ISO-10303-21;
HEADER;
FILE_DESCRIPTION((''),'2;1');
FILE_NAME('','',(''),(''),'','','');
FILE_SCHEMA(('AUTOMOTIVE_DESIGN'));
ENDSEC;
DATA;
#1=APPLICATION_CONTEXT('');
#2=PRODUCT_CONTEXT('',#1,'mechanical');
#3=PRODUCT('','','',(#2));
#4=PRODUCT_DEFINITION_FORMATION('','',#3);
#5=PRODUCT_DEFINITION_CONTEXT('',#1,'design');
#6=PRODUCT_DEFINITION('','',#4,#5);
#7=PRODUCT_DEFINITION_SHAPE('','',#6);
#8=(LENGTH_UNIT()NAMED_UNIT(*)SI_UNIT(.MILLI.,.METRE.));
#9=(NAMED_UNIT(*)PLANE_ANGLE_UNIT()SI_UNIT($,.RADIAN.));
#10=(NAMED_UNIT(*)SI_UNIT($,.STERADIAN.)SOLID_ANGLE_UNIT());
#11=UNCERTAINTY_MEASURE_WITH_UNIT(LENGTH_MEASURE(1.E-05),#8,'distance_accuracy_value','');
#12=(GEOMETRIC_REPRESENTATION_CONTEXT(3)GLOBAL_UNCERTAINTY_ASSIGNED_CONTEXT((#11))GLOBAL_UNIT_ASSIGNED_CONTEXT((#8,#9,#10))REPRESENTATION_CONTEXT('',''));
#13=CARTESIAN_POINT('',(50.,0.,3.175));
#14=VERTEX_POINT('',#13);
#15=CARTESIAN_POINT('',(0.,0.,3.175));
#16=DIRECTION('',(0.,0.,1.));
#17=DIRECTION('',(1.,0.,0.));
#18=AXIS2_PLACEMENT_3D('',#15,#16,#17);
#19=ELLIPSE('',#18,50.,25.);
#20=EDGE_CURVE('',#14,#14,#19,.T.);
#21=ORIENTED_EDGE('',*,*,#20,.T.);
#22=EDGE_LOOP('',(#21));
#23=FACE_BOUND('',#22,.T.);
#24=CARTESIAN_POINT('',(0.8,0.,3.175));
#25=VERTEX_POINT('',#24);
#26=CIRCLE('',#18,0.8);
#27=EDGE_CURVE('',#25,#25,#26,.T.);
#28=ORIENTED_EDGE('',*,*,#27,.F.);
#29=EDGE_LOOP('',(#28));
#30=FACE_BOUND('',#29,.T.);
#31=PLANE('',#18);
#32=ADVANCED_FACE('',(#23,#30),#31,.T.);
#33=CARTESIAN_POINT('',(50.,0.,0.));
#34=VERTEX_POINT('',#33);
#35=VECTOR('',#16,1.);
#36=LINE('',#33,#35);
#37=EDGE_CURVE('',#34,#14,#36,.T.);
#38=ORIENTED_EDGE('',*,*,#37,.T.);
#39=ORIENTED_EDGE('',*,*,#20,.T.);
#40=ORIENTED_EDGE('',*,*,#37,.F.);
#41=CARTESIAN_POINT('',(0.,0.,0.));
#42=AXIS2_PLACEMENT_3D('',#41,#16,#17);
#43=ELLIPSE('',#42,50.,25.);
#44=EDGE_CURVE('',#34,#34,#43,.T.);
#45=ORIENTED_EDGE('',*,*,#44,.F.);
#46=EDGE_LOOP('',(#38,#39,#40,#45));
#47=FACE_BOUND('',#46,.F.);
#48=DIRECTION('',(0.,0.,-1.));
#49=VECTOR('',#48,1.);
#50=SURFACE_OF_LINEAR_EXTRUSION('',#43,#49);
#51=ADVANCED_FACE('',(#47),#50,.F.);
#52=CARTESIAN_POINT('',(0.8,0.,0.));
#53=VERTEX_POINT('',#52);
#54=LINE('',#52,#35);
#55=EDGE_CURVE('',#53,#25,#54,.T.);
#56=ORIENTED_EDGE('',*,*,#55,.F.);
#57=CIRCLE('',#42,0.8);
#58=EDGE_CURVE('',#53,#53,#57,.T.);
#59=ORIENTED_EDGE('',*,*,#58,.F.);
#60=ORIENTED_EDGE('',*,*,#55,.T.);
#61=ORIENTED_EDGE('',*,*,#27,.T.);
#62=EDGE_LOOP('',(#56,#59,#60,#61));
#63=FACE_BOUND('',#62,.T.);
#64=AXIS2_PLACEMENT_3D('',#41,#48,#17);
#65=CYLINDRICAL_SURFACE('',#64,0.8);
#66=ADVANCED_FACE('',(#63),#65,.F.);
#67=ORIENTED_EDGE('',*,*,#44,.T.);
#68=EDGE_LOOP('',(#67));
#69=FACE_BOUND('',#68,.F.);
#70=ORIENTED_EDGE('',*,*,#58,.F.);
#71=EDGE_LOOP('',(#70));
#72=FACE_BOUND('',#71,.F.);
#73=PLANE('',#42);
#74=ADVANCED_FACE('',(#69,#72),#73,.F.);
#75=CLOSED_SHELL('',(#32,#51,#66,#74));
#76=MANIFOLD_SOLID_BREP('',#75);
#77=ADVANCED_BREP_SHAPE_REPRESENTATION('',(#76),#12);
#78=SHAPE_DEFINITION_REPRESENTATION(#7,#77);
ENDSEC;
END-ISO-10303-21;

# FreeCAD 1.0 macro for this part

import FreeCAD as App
import Part
import Sketcher
from FreeCAD import Vector
Q = App.Units.Quantity

doc = App.newDocument("Part")
params = doc.addObject("Spreadsheet::Sheet", "Params")
for row, (alias, value) in enumerate([
    ("sketch1_diameter", "0.063 in"),
    ("pad1_length", "0.125 in"),
], start=1):
    params.set(f"A{row}", alias)
    params.set(f"B{row}", "=" + value)
    params.setAlias(f"B{row}", alias)

body = doc.addObject("PartDesign::Body", "Body")

sketch1 = body.newObject("Sketcher::SketchObject", "Sketch")
sketch1.AttachmentSupport = (doc.getObject("XY_Plane"), [""])
sketch1.MapMode = "FlatFace"
sketch1.addGeometry(Part.Ellipse(Vector(50, 0, 0), Vector(0, 25, 0), Vector(0, 0, 0)), False)
sketch1.addGeometry(Part.Circle(Vector(0, 0, 0), Vector(0, 0, 1), 0.8), False)
sketch1.addConstraint(Sketcher.Constraint("Block", 0))
sketch1.addConstraint(Sketcher.Constraint("Coincident", 1, 3, -1, 1))
sketch1.addConstraint(Sketcher.Constraint("Diameter", 1, Q("0.063 in")))
sketch1.setExpression("Constraints[2]", "Params.sketch1_diameter")
pad1 = body.newObject("PartDesign::Pad", "Pad")
pad1.Profile = sketch1
pad1.setExpression("Length", "Params.pad1_length")

doc.recompute()
